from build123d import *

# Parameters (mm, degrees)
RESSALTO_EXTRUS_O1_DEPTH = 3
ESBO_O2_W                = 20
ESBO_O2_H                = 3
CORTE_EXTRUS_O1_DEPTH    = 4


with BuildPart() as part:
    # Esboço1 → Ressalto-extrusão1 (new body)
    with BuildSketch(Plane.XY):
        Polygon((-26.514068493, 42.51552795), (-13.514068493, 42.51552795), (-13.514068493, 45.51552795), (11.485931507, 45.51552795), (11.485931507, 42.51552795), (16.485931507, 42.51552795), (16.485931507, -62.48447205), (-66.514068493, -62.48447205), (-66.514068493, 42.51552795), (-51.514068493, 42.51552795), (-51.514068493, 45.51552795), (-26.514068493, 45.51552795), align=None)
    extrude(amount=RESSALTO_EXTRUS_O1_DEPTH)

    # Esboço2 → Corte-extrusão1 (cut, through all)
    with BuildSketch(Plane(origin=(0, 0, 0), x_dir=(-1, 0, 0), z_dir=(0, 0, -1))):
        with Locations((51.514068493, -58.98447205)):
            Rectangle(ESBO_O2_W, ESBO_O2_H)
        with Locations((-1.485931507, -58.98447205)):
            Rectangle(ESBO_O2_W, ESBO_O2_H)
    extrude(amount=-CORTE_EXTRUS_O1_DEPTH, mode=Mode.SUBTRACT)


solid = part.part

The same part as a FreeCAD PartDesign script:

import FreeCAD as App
import Part
import Sketcher
Q = App.Units.Quantity

doc = App.newDocument("Part")
body = doc.addObject("PartDesign::Body", "Body")

# Sketch on XY plane
sketch1 = doc.addObject("Sketcher::SketchObject", "Sketch")
body.addObject(sketch1)
sketch1.AttachmentSupport = (doc.XY_Plane, [""])
sketch1.MapMode = "FlatFace"
sketch1.addGeometry(Part.LineSegment(App.Vector(-13.5, 42.5, 0), App.Vector(-26.5, 42.5, 0)), False)
sketch1.addGeometry(Part.LineSegment(App.Vector(-26.5, 42.5, 0), App.Vector(-26.5, 45.5, 0)), False)
sketch1.addGeometry(Part.LineSegment(App.Vector(-26.5, 45.5, 0), App.Vector(-51.5, 45.5, 0)), False)
sketch1.addGeometry(Part.LineSegment(App.Vector(-51.5, 45.5, 0), App.Vector(-51.5, 42.5, 0)), False)
sketch1.addGeometry(Part.LineSegment(App.Vector(-51.5, 42.5, 0), App.Vector(-66.5, 42.5, 0)), False)
sketch1.addGeometry(Part.LineSegment(App.Vector(-66.5, 42.5, 0), App.Vector(-66.5, -62.5, 0)), False)
sketch1.addGeometry(Part.LineSegment(App.Vector(-66.5, -62.5, 0), App.Vector(16.5, -62.5, 0)), False)
sketch1.addGeometry(Part.LineSegment(App.Vector(16.5, -62.5, 0), App.Vector(16.5, 42.5, 0)), False)
sketch1.addGeometry(Part.LineSegment(App.Vector(16.5, 42.5, 0), App.Vector(11.5, 42.5, 0)), False)
sketch1.addGeometry(Part.LineSegment(App.Vector(11.5, 42.5, 0), App.Vector(11.5, 45.5, 0)), False)
sketch1.addGeometry(Part.LineSegment(App.Vector(11.5, 45.5, 0), App.Vector(-13.5, 45.5, 0)), False)
sketch1.addGeometry(Part.LineSegment(App.Vector(-13.5, 45.5, 0), App.Vector(-13.5, 42.5, 0)), False)
sketch1.addConstraint(Sketcher.Constraint("Coincident", 0, 2, 1, 1))
sketch1.addConstraint(Sketcher.Constraint("Coincident", 1, 2, 2, 1))
sketch1.addConstraint(Sketcher.Constraint("Coincident", 2, 2, 3, 1))
sketch1.addConstraint(Sketcher.Constraint("Coincident", 3, 2, 4, 1))
sketch1.addConstraint(Sketcher.Constraint("Coincident", 4, 2, 5, 1))
sketch1.addConstraint(Sketcher.Constraint("Coincident", 5, 2, 6, 1))
sketch1.addConstraint(Sketcher.Constraint("Coincident", 6, 2, 7, 1))
sketch1.addConstraint(Sketcher.Constraint("Coincident", 7, 2, 8, 1))
sketch1.addConstraint(Sketcher.Constraint("Coincident", 8, 2, 9, 1))
sketch1.addConstraint(Sketcher.Constraint("Coincident", 9, 2, 10, 1))
sketch1.addConstraint(Sketcher.Constraint("Coincident", 10, 2, 11, 1))
sketch1.addConstraint(Sketcher.Constraint("Coincident", 11, 2, 0, 1))
sketch1.addConstraint(Sketcher.Constraint("Horizontal", 0))
sketch1.addConstraint(Sketcher.Constraint("Vertical", 1))
sketch1.addConstraint(Sketcher.Constraint("Horizontal", 2))
sketch1.addConstraint(Sketcher.Constraint("Vertical", 3))
sketch1.addConstraint(Sketcher.Constraint("Horizontal", 4))
sketch1.addConstraint(Sketcher.Constraint("Vertical", 5))
sketch1.addConstraint(Sketcher.Constraint("Horizontal", 6))
sketch1.addConstraint(Sketcher.Constraint("Vertical", 7))
sketch1.addConstraint(Sketcher.Constraint("Horizontal", 8))
sketch1.addConstraint(Sketcher.Constraint("Vertical", 9))
sketch1.addConstraint(Sketcher.Constraint("Horizontal", 10))
sketch1.addConstraint(Sketcher.Constraint("Vertical", 11))
sketch1.addConstraint(Sketcher.Constraint("Horizontal", 0, 2, 3, 2))
sketch1.addConstraint(Sketcher.Constraint("Horizontal", 4, 2, 7, 2))
sketch1.addConstraint(Sketcher.Constraint("Horizontal", 2, 2, 9, 2))
sketch1.addConstraint(Sketcher.Constraint("Equal", 2, 10))
sketch1.addConstraint(Sketcher.Constraint("DistanceX", 0, 2, 0, 1, Q("13 mm")))
sketch1.addConstraint(Sketcher.Constraint("DistanceX", 2, 2, 2, 1, Q("25 mm")))
sketch1.addConstraint(Sketcher.Constraint("DistanceX", 4, 2, 4, 1, Q("15 mm")))
sketch1.addConstraint(Sketcher.Constraint("DistanceX", 6, 1, 6, 2, Q("83 mm")))
sketch1.addConstraint(Sketcher.Constraint("DistanceY", 1, 1, 1, 2, Q("3 mm")))
sketch1.addConstraint(Sketcher.Constraint("DistanceY", 5, 2, 5, 1, Q("105 mm")))
sketch1.addConstraint(Sketcher.Constraint("DistanceX", 0, 2, -1, 1, Q("26.514068 mm")))
sketch1.addConstraint(Sketcher.Constraint("DistanceY", -1, 1, 0, 2, Q("42.515528 mm")))
pad1 = doc.addObject("PartDesign::Pad", "Pad")
body.addObject(pad1)
pad1.Profile = sketch1
pad1.Length = 3

# Sketch on XY plane
sketch2 = doc.addObject("Sketcher::SketchObject", "Sketch001")
body.addObject(sketch2)
sketch2.AttachmentSupport = (doc.XY_Plane, [""])
sketch2.MapMode = "FlatFace"
sketch2.addGeometry(Part.LineSegment(App.Vector(-41.5, -57.5, 0), App.Vector(-41.5, -60.5, 0)), False)
sketch2.addGeometry(Part.LineSegment(App.Vector(-41.5, -60.5, 0), App.Vector(-61.5, -60.5, 0)), False)
sketch2.addGeometry(Part.LineSegment(App.Vector(-61.5, -60.5, 0), App.Vector(-61.5, -57.5, 0)), False)
sketch2.addGeometry(Part.LineSegment(App.Vector(-61.5, -57.5, 0), App.Vector(-41.5, -57.5, 0)), False)
sketch2.addGeometry(Part.LineSegment(App.Vector(11.5, -57.5, 0), App.Vector(11.5, -60.5, 0)), False)
sketch2.addGeometry(Part.LineSegment(App.Vector(11.5, -60.5, 0), App.Vector(-8.5, -60.5, 0)), False)
sketch2.addGeometry(Part.LineSegment(App.Vector(-8.5, -60.5, 0), App.Vector(-8.5, -57.5, 0)), False)
sketch2.addGeometry(Part.LineSegment(App.Vector(-8.5, -57.5, 0), App.Vector(11.5, -57.5, 0)), False)
sketch2.addConstraint(Sketcher.Constraint("Coincident", 0, 2, 1, 1))
sketch2.addConstraint(Sketcher.Constraint("Coincident", 1, 2, 2, 1))
sketch2.addConstraint(Sketcher.Constraint("Coincident", 2, 2, 3, 1))
sketch2.addConstraint(Sketcher.Constraint("Coincident", 3, 2, 0, 1))
sketch2.addConstraint(Sketcher.Constraint("Coincident", 4, 2, 5, 1))
sketch2.addConstraint(Sketcher.Constraint("Coincident", 5, 2, 6, 1))
sketch2.addConstraint(Sketcher.Constraint("Coincident", 6, 2, 7, 1))
sketch2.addConstraint(Sketcher.Constraint("Coincident", 7, 2, 4, 1))
sketch2.addConstraint(Sketcher.Constraint("Vertical", 0))
sketch2.addConstraint(Sketcher.Constraint("Horizontal", 1))
sketch2.addConstraint(Sketcher.Constraint("Vertical", 2))
sketch2.addConstraint(Sketcher.Constraint("Horizontal", 3))
sketch2.addConstraint(Sketcher.Constraint("Vertical", 4))
sketch2.addConstraint(Sketcher.Constraint("Horizontal", 5))
sketch2.addConstraint(Sketcher.Constraint("Vertical", 6))
sketch2.addConstraint(Sketcher.Constraint("Horizontal", 7))
sketch2.addConstraint(Sketcher.Constraint("Horizontal", 1, 2, 4, 2))
sketch2.addConstraint(Sketcher.Constraint("Horizontal", 3, 2, 6, 2))
sketch2.addConstraint(Sketcher.Constraint("Equal", 3, 5))
sketch2.addConstraint(Sketcher.Constraint("DistanceX", 1, 2, 1, 1, Q("20 mm")))
sketch2.addConstraint(Sketcher.Constraint("DistanceY", 0, 2, 0, 1, Q("3 mm")))
sketch2.addConstraint(Sketcher.Constraint("DistanceX", 0, 2, 4, 2, Q("53 mm")))
sketch2.addConstraint(Sketcher.Constraint("DistanceX", 0, 2, -1, 1, Q("41.514068 mm")))
sketch2.addConstraint(Sketcher.Constraint("DistanceY", 0, 2, -1, 1, Q("60.484472 mm")))
pocket1 = doc.addObject("PartDesign::Pocket", "Pocket")
body.addObject(pocket1)
pocket1.Profile = sketch2
pocket1.Type = "ThroughAll"
pocket1.Reversed = True

doc.recompute()
